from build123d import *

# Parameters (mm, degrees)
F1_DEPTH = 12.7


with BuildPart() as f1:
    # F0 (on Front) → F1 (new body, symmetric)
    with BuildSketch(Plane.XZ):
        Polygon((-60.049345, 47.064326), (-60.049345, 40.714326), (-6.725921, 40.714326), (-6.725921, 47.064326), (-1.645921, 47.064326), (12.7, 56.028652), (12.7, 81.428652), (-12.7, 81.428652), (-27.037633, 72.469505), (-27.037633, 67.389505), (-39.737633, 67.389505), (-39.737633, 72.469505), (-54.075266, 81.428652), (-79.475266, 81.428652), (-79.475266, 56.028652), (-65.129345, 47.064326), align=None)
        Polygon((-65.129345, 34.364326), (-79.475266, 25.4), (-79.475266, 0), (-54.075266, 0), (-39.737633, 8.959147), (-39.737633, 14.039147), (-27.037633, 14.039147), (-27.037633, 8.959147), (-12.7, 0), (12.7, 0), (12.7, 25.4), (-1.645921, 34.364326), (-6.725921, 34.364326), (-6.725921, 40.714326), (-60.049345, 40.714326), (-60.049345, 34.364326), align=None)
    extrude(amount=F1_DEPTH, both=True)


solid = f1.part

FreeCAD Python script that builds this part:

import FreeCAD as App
import Part
import Sketcher

V = App.Vector
Q = App.Units.Quantity

doc = App.newDocument("Part")
body = doc.addObject("PartDesign::Body", "Body")

sketch1 = body.newObject("Sketcher::SketchObject", "Sketch")
sketch1.AttachmentSupport = (doc.getObject("XZ_Plane"), [""])
sketch1.MapMode = "FlatFace"
sketch1.addGeometry(Part.LineSegment(V(-60, 47, 0), V(-60, 34, 0)), False)
sketch1.addGeometry(Part.LineSegment(V(-60, 34, 0), V(-65, 34, 0)), False)
sketch1.addGeometry(Part.LineSegment(V(-65, 34, 0), V(-79, 25, 0)), False)
sketch1.addGeometry(Part.LineSegment(V(-79, 25, 0), V(-79, 0, 0)), False)
sketch1.addGeometry(Part.LineSegment(V(-79, 0, 0), V(-54, 0, 0)), False)
sketch1.addGeometry(Part.LineSegment(V(-54, 0, 0), V(-40, 9, 0)), False)
sketch1.addGeometry(Part.LineSegment(V(-40, 9, 0), V(-40, 14, 0)), False)
sketch1.addGeometry(Part.LineSegment(V(-40, 14, 0), V(-27, 14, 0)), False)
sketch1.addGeometry(Part.LineSegment(V(-27, 14, 0), V(-27, 9, 0)), False)
sketch1.addGeometry(Part.LineSegment(V(-27, 9, 0), V(-13, 0, 0)), False)
sketch1.addGeometry(Part.LineSegment(V(-13, 0, 0), V(13, 0, 0)), False)
sketch1.addGeometry(Part.LineSegment(V(13, 0, 0), V(13, 25, 0)), False)
sketch1.addGeometry(Part.LineSegment(V(13, 25, 0), V(-2, 34, 0)), False)
sketch1.addGeometry(Part.LineSegment(V(-2, 34, 0), V(-7, 34, 0)), False)
sketch1.addGeometry(Part.LineSegment(V(-7, 34, 0), V(-7, 47, 0)), False)
sketch1.addGeometry(Part.LineSegment(V(-7, 47, 0), V(-2, 47, 0)), False)
sketch1.addGeometry(Part.LineSegment(V(-2, 47, 0), V(13, 56, 0)), False)
sketch1.addGeometry(Part.LineSegment(V(13, 56, 0), V(13, 81, 0)), False)
sketch1.addGeometry(Part.LineSegment(V(13, 81, 0), V(-13, 81, 0)), False)
sketch1.addGeometry(Part.LineSegment(V(-13, 81, 0), V(-27, 72, 0)), False)
sketch1.addGeometry(Part.LineSegment(V(-27, 72, 0), V(-27, 67, 0)), False)
sketch1.addGeometry(Part.LineSegment(V(-27, 67, 0), V(-40, 67, 0)), False)
sketch1.addGeometry(Part.LineSegment(V(-40, 67, 0), V(-40, 72, 0)), False)
sketch1.addGeometry(Part.LineSegment(V(-40, 72, 0), V(-54, 81, 0)), False)
sketch1.addGeometry(Part.LineSegment(V(-54, 81, 0), V(-79, 81, 0)), False)
sketch1.addGeometry(Part.LineSegment(V(-79, 81, 0), V(-79, 56, 0)), False)
sketch1.addGeometry(Part.LineSegment(V(-79, 56, 0), V(-65, 47, 0)), False)
sketch1.addGeometry(Part.LineSegment(V(-65, 47, 0), V(-60, 47, 0)), False)
sketch1.addConstraint(Sketcher.Constraint("Coincident", 0, 2, 1, 1))
sketch1.addConstraint(Sketcher.Constraint("Coincident", 1, 2, 2, 1))
sketch1.addConstraint(Sketcher.Constraint("Coincident", 2, 2, 3, 1))
sketch1.addConstraint(Sketcher.Constraint("Coincident", 3, 2, 4, 1))
sketch1.addConstraint(Sketcher.Constraint("Coincident", 4, 2, 5, 1))
sketch1.addConstraint(Sketcher.Constraint("Coincident", 5, 2, 6, 1))
sketch1.addConstraint(Sketcher.Constraint("Coincident", 6, 2, 7, 1))
sketch1.addConstraint(Sketcher.Constraint("Coincident", 7, 2, 8, 1))
sketch1.addConstraint(Sketcher.Constraint("Coincident", 8, 2, 9, 1))
sketch1.addConstraint(Sketcher.Constraint("Coincident", 9, 2, 10, 1))
sketch1.addConstraint(Sketcher.Constraint("Coincident", 10, 2, 11, 1))
sketch1.addConstraint(Sketcher.Constraint("Coincident", 11, 2, 12, 1))
sketch1.addConstraint(Sketcher.Constraint("Coincident", 12, 2, 13, 1))
sketch1.addConstraint(Sketcher.Constraint("Coincident", 13, 2, 14, 1))
sketch1.addConstraint(Sketcher.Constraint("Coincident", 14, 2, 15, 1))
sketch1.addConstraint(Sketcher.Constraint("Coincident", 15, 2, 16, 1))
sketch1.addConstraint(Sketcher.Constraint("Coincident", 16, 2, 17, 1))
sketch1.addConstraint(Sketcher.Constraint("Coincident", 17, 2, 18, 1))
sketch1.addConstraint(Sketcher.Constraint("Coincident", 18, 2, 19, 1))
sketch1.addConstraint(Sketcher.Constraint("Coincident", 19, 2, 20, 1))
sketch1.addConstraint(Sketcher.Constraint("Coincident", 20, 2, 21, 1))
sketch1.addConstraint(Sketcher.Constraint("Coincident", 21, 2, 22, 1))
sketch1.addConstraint(Sketcher.Constraint("Coincident", 22, 2, 23, 1))
sketch1.addConstraint(Sketcher.Constraint("Coincident", 23, 2, 24, 1))
sketch1.addConstraint(Sketcher.Constraint("Coincident", 24, 2, 25, 1))
sketch1.addConstraint(Sketcher.Constraint("Coincident", 25, 2, 26, 1))
sketch1.addConstraint(Sketcher.Constraint("Coincident", 26, 2, 27, 1))
sketch1.addConstraint(Sketcher.Constraint("Coincident", 27, 2, 0, 1))
sketch1.addConstraint(Sketcher.Constraint("Vertical", 0))
sketch1.addConstraint(Sketcher.Constraint("Horizontal", 1))
sketch1.addConstraint(Sketcher.Constraint("Vertical", 3))
sketch1.addConstraint(Sketcher.Constraint("Horizontal", 4))
sketch1.addConstraint(Sketcher.Constraint("Vertical", 6))
sketch1.addConstraint(Sketcher.Constraint("Horizontal", 7))
sketch1.addConstraint(Sketcher.Constraint("Vertical", 8))
sketch1.addConstraint(Sketcher.Constraint("Horizontal", 10))
sketch1.addConstraint(Sketcher.Constraint("Vertical", 11))
sketch1.addConstraint(Sketcher.Constraint("Horizontal", 13))
sketch1.addConstraint(Sketcher.Constraint("Vertical", 14))
sketch1.addConstraint(Sketcher.Constraint("Horizontal", 15))
sketch1.addConstraint(Sketcher.Constraint("Vertical", 17))
sketch1.addConstraint(Sketcher.Constraint("Horizontal", 18))
sketch1.addConstraint(Sketcher.Constraint("Vertical", 20))
sketch1.addConstraint(Sketcher.Constraint("Horizontal", 21))
sketch1.addConstraint(Sketcher.Constraint("Vertical", 22))
sketch1.addConstraint(Sketcher.Constraint("Horizontal", 24))
sketch1.addConstraint(Sketcher.Constraint("Vertical", 25))
sketch1.addConstraint(Sketcher.Constraint("Horizontal", 27))
sketch1.addConstraint(Sketcher.Constraint("Symmetric", 9, 2, 10, 2, -1, 1))
sketch1.addConstraint(Sketcher.Constraint("PointOnObject", 3, 2, -1))
sketch1.addConstraint(Sketcher.Constraint("Parallel", 2, 5))
sketch1.addConstraint(Sketcher.Constraint("Parallel", 9, 12))
sketch1.addConstraint(Sketcher.Constraint("Parallel", 5, 16))
sketch1.addConstraint(Sketcher.Constraint("Parallel", 16, 19))
sketch1.addConstraint(Sketcher.Constraint("Parallel", 12, 23))
sketch1.addConstraint(Sketcher.Constraint("Parallel", 23, 26))
sketch1.addConstraint(Sketcher.Constraint("Horizontal", 5, 2, 8, 2))
sketch1.addConstraint(Sketcher.Constraint("Horizontal", 2, 2, 11, 2))
sketch1.addConstraint(Sketcher.Constraint("Horizontal", 1, 2, 12, 2))
sketch1.addConstraint(Sketcher.Constraint("Horizontal", 19, 2, 22, 2))
sketch1.addConstraint(Sketcher.Constraint("Horizontal", 18, 2, 23, 2))
sketch1.addConstraint(Sketcher.Constraint("Horizontal", 16, 2, 25, 2))
sketch1.addConstraint(Sketcher.Constraint("Horizontal", 15, 2, 26, 2))
sketch1.addConstraint(Sketcher.Constraint("Vertical", 12, 2, 15, 2))
sketch1.addConstraint(Sketcher.Constraint("Vertical", 11, 2, 16, 2))
sketch1.addConstraint(Sketcher.Constraint("Vertical", 9, 2, 18, 2))
sketch1.addConstraint(Sketcher.Constraint("Vertical", 8, 2, 19, 2))
sketch1.addConstraint(Sketcher.Constraint("Vertical", 6, 2, 21, 2))
sketch1.addConstraint(Sketcher.Constraint("Vertical", 4, 2, 23, 2))
sketch1.addConstraint(Sketcher.Constraint("Vertical", 3, 2, 24, 2))
sketch1.addConstraint(Sketcher.Constraint("Equal", 4, 10))
sketch1.addConstraint(Sketcher.Constraint("Equal", 1, 13))
sketch1.addConstraint(Sketcher.Constraint("Equal", 21, 0))
sketch1.addConstraint(Sketcher.Constraint("Equal", 24, 3))
sketch1.addConstraint(Sketcher.Constraint("Equal", 27, 6))
sketch1.addConstraint(Sketcher.Constraint("Equal", 11, 17))
sketch1.addConstraint(Sketcher.Constraint("Equal", 8, 20))
sketch1.addConstraint(Sketcher.Constraint("DistanceX", 4, 1, 4, 2, Q("1 in")))
sketch1.addConstraint(Sketcher.Constraint("DistanceX", 1, 2, 1, 1, Q("0.2 in")))
sketch1.addConstraint(Sketcher.Constraint("DistanceX", 7, 1, 7, 2, Q("0.5 in")))
sketch1.addConstraint(Sketcher.Constraint("Angle", 2, Q("-148.000001 deg")))
sketch1.addConstraint(Sketcher.Constraint("Distance", 2, Q("0.666 in")))
sketch1.addConstraint(Sketcher.Constraint("DistanceX", 0, 2, 5, 2, Q("20.311712 mm")))
pad1 = body.newObject("PartDesign::Pad", "Pad")
pad1.Profile = sketch1
pad1.Length = Q("1 in")
pad1.Midplane = True

doc.recompute()
